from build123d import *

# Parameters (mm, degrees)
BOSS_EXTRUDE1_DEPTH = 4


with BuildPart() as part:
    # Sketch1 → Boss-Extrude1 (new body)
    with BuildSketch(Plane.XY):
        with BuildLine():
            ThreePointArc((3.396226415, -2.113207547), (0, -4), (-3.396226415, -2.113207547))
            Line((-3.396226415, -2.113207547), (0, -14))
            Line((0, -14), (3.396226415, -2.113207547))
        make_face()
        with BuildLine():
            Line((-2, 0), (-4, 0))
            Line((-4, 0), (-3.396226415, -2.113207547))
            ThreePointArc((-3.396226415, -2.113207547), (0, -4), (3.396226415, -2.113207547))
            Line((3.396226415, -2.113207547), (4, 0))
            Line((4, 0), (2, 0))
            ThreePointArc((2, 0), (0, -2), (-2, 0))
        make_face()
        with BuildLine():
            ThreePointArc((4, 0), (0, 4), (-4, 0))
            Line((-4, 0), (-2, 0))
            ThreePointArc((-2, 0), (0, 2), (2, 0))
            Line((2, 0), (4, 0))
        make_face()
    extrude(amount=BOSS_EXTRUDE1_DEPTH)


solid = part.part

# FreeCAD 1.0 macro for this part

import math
import FreeCAD as App
import Part
import Sketcher

V = App.Vector
Q = App.Units.Quantity

doc = App.newDocument("Part")
body = doc.addObject("PartDesign::Body", "Body")

# Sketch on XY plane
sketch1 = body.newObject("Sketcher::SketchObject", "Sketch")
sketch1.AttachmentSupport = (doc.getObject("XY_Plane"), [""])
sketch1.MapMode = "FlatFace"
sketch1.addGeometry(Part.LineSegment(V(-3.396226, -2.113208, 0), V(0, -14, 0)), False)
sketch1.addGeometry(Part.LineSegment(V(0, -14, 0), V(3.396226, -2.113208, 0)), False)
sketch1.addGeometry(Part.LineSegment(V(3.396226, -2.113208, 0), V(4, 0, 0)), False)
sketch1.addGeometry(Part.ArcOfCircle(Part.Circle(V(0, 0, 0), V(0, 0, 1), 4), math.radians(0), math.radians(180)), False)
sketch1.addGeometry(Part.LineSegment(V(-4, 0, 0), V(-3.396226, -2.113208, 0)), False)
sketch1.addGeometry(Part.Circle(V(0, 0, 0), V(0, 0, 1), 2), False)
sketch1.addConstraint(Sketcher.Constraint("Coincident", 0, 2, 1, 1))
sketch1.addConstraint(Sketcher.Constraint("Coincident", 1, 2, 2, 1))
sketch1.addConstraint(Sketcher.Constraint("Coincident", 2, 2, 3, 1))
sketch1.addConstraint(Sketcher.Constraint("Coincident", 3, 2, 4, 1))
sketch1.addConstraint(Sketcher.Constraint("Coincident", 4, 2, 0, 1))
sketch1.addConstraint(Sketcher.Constraint("Coincident", 3, 3, -1, 1))
sketch1.addConstraint(Sketcher.Constraint("Coincident", 5, 3, -1, 1))
sketch1.addConstraint(Sketcher.Constraint("Symmetric", 1, 2, 4, 2, -2))
sketch1.addConstraint(Sketcher.Constraint("PointOnObject", 0, 2, -2))
sketch1.addConstraint(Sketcher.Constraint("PointOnObject", 2, 2, -1))
sketch1.addConstraint(Sketcher.Constraint("PointOnObject", 3, 2, -1))
sketch1.addConstraint(Sketcher.Constraint("Parallel", 1, 2))
sketch1.addConstraint(Sketcher.Constraint("Diameter", 5, Q("4 mm")))
sketch1.addConstraint(Sketcher.Constraint("Radius", 3, Q("4 mm")))
sketch1.addConstraint(Sketcher.Constraint("DistanceY", 0, 2, -1, 1, Q("14 mm")))
sketch1.addConstraint(Sketcher.Constraint("Distance", 0, Q("12.362451 mm")))
pad1 = body.newObject("PartDesign::Pad", "Pad")
pad1.Profile = sketch1
pad1.Length = 4

doc.recompute()
